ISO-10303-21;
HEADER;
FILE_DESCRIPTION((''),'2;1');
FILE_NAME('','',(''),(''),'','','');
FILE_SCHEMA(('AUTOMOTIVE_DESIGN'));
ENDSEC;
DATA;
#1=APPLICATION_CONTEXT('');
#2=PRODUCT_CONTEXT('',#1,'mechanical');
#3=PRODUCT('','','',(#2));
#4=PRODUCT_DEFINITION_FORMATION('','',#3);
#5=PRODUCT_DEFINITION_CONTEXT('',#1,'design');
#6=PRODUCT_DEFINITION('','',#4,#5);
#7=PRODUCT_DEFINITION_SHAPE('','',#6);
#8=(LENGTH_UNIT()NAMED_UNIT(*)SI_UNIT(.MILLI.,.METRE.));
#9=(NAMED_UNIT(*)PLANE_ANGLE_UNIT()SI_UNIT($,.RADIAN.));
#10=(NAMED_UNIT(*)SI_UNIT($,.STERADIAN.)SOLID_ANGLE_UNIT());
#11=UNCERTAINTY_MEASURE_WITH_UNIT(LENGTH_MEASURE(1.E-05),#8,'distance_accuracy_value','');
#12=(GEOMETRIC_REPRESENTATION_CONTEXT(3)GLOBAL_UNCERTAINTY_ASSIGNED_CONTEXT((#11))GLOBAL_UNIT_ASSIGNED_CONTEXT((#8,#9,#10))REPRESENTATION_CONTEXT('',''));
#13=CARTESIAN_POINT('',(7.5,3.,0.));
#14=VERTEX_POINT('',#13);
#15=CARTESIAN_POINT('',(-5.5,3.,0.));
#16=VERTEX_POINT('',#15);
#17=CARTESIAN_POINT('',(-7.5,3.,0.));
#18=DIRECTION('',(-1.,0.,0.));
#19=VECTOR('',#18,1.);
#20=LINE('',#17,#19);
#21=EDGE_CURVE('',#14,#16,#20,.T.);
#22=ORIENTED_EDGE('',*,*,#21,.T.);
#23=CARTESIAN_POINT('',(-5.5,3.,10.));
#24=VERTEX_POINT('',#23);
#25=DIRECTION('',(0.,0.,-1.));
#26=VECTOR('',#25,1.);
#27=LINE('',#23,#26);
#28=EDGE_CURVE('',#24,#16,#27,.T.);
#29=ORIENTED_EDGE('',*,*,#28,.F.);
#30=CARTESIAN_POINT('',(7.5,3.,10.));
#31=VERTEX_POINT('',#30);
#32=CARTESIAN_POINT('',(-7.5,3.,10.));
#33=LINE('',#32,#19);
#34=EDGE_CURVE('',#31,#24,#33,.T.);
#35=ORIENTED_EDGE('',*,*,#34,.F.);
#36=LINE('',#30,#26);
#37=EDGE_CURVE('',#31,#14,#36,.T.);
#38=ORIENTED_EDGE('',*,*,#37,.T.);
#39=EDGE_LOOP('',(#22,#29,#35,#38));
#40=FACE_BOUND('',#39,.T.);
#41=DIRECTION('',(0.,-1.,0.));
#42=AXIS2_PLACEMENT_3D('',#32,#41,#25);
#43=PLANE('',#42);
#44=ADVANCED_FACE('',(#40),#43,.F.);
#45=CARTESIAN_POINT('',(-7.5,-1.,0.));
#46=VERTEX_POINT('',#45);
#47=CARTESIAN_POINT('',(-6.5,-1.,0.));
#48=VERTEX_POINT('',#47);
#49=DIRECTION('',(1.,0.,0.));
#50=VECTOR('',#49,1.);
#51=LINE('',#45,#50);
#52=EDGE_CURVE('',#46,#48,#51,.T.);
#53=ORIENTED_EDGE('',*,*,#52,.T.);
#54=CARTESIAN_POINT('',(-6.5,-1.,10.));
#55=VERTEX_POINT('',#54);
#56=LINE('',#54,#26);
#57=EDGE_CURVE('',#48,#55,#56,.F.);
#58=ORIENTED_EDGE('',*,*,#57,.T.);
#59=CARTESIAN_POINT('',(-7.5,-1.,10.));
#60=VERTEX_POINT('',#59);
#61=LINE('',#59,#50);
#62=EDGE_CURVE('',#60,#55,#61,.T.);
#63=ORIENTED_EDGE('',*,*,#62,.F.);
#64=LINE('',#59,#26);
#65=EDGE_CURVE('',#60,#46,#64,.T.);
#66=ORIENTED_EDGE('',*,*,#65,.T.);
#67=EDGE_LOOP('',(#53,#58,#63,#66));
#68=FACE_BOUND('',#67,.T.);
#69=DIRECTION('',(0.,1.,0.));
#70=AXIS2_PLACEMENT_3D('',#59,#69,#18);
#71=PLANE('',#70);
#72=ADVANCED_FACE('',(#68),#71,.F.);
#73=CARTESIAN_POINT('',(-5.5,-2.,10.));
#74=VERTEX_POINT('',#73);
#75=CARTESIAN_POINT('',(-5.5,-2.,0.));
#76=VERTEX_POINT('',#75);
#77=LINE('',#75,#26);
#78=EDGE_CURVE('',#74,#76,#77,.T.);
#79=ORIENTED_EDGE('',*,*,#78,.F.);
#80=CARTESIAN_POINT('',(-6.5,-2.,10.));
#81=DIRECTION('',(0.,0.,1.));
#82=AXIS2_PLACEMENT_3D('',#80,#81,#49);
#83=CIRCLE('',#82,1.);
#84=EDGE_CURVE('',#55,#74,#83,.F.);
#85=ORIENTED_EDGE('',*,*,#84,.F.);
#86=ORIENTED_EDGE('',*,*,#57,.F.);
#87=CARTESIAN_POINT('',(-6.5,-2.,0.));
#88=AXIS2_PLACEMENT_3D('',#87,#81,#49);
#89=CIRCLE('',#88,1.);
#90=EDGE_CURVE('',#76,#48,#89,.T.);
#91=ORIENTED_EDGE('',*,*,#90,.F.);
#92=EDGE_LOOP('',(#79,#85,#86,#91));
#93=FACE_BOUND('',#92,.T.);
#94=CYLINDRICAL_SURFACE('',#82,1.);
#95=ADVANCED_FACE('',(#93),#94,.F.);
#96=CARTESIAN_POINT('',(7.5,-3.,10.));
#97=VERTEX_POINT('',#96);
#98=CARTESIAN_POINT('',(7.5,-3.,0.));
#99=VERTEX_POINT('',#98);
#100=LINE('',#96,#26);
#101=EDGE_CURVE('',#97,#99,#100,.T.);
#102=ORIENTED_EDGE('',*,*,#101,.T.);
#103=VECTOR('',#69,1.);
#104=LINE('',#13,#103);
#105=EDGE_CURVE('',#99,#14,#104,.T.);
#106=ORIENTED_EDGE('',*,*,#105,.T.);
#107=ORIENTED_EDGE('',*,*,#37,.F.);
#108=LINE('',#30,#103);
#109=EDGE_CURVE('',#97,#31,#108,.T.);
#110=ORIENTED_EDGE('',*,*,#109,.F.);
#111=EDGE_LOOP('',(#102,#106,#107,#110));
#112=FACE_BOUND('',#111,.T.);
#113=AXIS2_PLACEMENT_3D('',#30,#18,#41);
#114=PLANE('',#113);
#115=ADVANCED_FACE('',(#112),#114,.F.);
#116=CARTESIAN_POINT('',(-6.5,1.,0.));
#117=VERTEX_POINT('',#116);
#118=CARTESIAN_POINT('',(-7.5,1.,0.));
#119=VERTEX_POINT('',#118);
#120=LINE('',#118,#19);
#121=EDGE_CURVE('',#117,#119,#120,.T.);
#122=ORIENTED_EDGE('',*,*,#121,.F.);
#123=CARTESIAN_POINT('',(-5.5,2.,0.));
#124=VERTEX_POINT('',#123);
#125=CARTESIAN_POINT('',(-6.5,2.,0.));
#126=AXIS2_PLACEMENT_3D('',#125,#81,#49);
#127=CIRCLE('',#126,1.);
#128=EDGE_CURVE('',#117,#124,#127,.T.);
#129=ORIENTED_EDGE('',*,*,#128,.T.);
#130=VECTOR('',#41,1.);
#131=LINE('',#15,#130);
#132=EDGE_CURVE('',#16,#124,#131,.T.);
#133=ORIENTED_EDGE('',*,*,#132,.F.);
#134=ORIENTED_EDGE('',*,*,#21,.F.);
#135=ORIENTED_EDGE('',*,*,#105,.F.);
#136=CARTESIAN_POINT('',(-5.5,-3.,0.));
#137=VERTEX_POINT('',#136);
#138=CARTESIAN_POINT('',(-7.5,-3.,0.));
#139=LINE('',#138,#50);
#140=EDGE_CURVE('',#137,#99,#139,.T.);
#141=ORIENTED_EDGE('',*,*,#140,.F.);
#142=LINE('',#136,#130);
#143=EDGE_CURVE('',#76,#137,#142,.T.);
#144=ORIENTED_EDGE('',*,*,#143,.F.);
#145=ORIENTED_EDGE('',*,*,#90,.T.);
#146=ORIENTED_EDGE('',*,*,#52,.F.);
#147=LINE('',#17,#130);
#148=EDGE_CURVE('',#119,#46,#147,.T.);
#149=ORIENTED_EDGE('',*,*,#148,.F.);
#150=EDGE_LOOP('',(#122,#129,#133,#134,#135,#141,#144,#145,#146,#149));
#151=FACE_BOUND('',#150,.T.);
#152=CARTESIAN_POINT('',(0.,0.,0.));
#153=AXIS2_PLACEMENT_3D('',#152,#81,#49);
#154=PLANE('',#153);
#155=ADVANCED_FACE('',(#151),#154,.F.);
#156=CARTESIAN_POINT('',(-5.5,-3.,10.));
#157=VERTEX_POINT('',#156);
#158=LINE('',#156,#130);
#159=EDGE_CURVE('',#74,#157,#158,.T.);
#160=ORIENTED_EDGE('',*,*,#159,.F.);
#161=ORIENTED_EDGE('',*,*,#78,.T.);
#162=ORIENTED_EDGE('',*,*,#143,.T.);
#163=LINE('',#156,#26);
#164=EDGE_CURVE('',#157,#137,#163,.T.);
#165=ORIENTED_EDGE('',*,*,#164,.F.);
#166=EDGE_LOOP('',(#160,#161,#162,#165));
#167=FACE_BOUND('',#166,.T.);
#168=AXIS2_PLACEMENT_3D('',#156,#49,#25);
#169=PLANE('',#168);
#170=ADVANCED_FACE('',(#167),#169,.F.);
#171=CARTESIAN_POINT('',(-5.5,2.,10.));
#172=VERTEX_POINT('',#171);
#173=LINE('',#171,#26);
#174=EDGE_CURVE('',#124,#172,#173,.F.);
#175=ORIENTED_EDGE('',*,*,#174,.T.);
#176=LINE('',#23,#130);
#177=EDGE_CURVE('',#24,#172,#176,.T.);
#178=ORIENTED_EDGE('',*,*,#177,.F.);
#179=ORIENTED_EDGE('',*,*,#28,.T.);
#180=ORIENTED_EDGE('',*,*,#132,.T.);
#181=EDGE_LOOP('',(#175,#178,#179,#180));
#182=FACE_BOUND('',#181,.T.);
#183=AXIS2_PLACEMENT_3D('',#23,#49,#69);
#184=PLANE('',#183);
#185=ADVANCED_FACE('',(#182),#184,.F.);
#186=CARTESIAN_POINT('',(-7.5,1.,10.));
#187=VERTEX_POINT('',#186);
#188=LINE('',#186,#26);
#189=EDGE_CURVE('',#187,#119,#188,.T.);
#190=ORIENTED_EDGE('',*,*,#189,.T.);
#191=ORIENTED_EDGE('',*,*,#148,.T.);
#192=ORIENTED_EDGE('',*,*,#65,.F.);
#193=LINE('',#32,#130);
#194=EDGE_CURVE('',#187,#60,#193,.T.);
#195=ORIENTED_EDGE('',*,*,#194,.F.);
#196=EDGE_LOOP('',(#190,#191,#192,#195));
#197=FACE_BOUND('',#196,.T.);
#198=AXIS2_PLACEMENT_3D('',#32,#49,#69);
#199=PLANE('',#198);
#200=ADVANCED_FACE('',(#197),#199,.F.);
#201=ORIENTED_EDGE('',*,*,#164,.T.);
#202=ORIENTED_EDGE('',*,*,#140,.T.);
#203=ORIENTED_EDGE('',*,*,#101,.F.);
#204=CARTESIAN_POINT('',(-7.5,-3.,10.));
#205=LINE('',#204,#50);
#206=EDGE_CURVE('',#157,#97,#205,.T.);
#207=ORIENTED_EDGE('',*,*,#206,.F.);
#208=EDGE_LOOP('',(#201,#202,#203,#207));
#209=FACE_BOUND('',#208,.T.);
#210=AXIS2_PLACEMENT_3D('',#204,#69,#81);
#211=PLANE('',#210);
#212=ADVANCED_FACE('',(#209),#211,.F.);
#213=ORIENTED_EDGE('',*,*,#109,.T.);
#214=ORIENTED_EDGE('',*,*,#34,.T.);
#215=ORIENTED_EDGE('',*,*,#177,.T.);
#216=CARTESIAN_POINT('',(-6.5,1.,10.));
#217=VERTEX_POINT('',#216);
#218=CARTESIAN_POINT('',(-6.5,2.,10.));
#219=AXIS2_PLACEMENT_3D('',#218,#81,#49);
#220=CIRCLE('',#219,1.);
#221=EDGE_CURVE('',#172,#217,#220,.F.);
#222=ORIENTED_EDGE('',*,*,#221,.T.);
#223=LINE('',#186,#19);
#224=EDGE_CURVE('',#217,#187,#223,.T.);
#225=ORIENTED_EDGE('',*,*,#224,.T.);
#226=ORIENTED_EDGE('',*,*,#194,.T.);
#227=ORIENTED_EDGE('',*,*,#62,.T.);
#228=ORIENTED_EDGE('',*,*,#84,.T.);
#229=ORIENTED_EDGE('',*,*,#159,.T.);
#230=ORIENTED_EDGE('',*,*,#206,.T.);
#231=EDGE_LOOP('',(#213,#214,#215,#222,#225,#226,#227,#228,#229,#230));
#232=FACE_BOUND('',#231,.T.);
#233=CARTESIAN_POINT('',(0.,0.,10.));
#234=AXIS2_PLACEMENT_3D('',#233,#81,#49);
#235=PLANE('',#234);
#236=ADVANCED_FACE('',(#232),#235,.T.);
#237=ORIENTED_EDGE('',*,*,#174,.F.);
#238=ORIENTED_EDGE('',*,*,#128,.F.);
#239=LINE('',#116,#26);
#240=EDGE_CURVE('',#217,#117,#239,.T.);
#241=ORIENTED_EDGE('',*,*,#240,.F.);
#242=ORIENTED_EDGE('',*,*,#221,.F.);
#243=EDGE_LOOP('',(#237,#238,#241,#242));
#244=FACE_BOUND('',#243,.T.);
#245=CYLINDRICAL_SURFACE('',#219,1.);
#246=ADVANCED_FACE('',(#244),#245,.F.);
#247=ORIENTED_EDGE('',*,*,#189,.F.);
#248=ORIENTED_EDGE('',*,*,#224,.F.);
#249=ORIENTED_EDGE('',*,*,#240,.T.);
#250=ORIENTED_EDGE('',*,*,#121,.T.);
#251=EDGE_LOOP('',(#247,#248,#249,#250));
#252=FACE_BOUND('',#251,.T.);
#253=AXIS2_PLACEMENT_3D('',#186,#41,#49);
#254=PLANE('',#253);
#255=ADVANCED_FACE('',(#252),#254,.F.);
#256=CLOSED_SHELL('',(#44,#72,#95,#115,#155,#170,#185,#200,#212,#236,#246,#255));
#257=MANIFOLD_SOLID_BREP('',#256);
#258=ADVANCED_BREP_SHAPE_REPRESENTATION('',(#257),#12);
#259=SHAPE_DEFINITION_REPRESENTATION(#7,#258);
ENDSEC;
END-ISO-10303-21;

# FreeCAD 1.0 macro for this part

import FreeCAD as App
import Part
import Sketcher

V = App.Vector


def edges_at(feature, points):
    """Names of the edges that pass closest to the given points."""
    edges = feature.Shape.Edges
    near = lambda p: min(range(len(edges)), key=lambda i: edges[i].distToShape(Part.Vertex(*p))[0])
    return sorted({f"Edge{near(p) + 1}" for p in points})


def add_polygon(sketch, points):
    """Adds a closed chain of lines whose ends are joined by coincident constraints."""
    first, n = sketch.GeometryCount, len(points)
    for a, b in zip(points, points[1:] + points[:1]):
        sketch.addGeometry(Part.LineSegment(App.Vector(*a, 0), App.Vector(*b, 0)), False)
    for i in range(n):
        sketch.addConstraint(Sketcher.Constraint("Coincident", first + i, 2, first + (i + 1) % n, 1))

doc = App.newDocument("Part")
params = doc.addObject("Spreadsheet::Sheet", "Params")
for row, (alias, value) in enumerate([
    ("sketch1_width", "15 mm"),
    ("sketch1_height", "6 mm"),
    ("pad1_length", "10 mm"),
    ("sketch2_width", "2 mm"),
    ("fillet_radius", "1 mm"),
], start=1):
    params.set(f"A{row}", alias)
    params.set(f"B{row}", "=" + value)
    params.setAlias(f"B{row}", alias)

body = doc.addObject("PartDesign::Body", "Body")

# Sketch on XY plane
sketch1 = body.newObject("Sketcher::SketchObject", "Sketch")
sketch1.AttachmentSupport = (doc.getObject("XY_Plane"), [""])
sketch1.MapMode = "FlatFace"
add_polygon(sketch1, [(-7.5, 3), (-7.5, -3), (7.5, -3), (7.5, 3)])  # lines 0-3
sketch1.addConstraint([
    Sketcher.Constraint("Vertical", 0),
    Sketcher.Constraint("Horizontal", 1),
    Sketcher.Constraint("Vertical", 2),
    Sketcher.Constraint("Horizontal", 3),
    Sketcher.Constraint("Symmetric", 0, 2, 2, 2, -1, 1),
    Sketcher.Constraint("DistanceX", 1, 1, 1, 2, 15.0),
    Sketcher.Constraint("DistanceY", 0, 2, 0, 1, 6.0),
])
sketch1.setExpression("Constraints[9]", "Params.sketch1_width")
sketch1.setExpression("Constraints[10]", "Params.sketch1_height")
pad1 = body.newObject("PartDesign::Pad", "Pad")
pad1.Profile = sketch1
pad1.setExpression("Length", "Params.pad1_length")

# Sketch on XY plane
sketch2 = body.newObject("Sketcher::SketchObject", "Sketch001")
sketch2.AttachmentSupport = (doc.getObject("XY_Plane"), [""])
sketch2.MapMode = "FlatFace"
add_polygon(sketch2, [(-5.5, 3), (-5.5, 1), (-7.5, 1), (-7.5, 3)])  # lines 0-3
add_polygon(sketch2, [(-5.5, -1), (-5.5, -3), (-7.5, -3), (-7.5, -1)])  # lines 4-7
sketch2.addConstraint([
    Sketcher.Constraint("Vertical", 0),
    Sketcher.Constraint("Horizontal", 1),
    Sketcher.Constraint("Vertical", 2),
    Sketcher.Constraint("Horizontal", 3),
    Sketcher.Constraint("Vertical", 4),
    Sketcher.Constraint("Horizontal", 5),
    Sketcher.Constraint("Vertical", 6),
    Sketcher.Constraint("Horizontal", 7),
    Sketcher.Constraint("Symmetric", 3, 2, 4, 2, -1),
    Sketcher.Constraint("Symmetric", 1, 2, 6, 2, -1),
    Sketcher.Constraint("Equal", 7, 0),
    Sketcher.Constraint("DistanceX", 1, 2, 1, 1, 2.0),
    Sketcher.Constraint("DistanceY", -1, 1, 0, 2, 1.0),
    Sketcher.Constraint("DistanceX", 0, 2, -1, 1, 5.5),
])
sketch2.setExpression("Constraints[19]", "Params.sketch2_width")
pocket1 = body.newObject("PartDesign::Pocket", "Pocket")
pocket1.Profile = sketch2
pocket1.Type = "ThroughAll"
pocket1.Reversed = True
doc.recompute()

fillet = body.newObject("PartDesign::Fillet", "Fillet")
fillet.Base = (pocket1, edges_at(pocket1, [(-5.5, 1, 5), (-5.5, -1, 5)]))
fillet.setExpression("Radius", "Params.fillet_radius")

doc.recompute()
